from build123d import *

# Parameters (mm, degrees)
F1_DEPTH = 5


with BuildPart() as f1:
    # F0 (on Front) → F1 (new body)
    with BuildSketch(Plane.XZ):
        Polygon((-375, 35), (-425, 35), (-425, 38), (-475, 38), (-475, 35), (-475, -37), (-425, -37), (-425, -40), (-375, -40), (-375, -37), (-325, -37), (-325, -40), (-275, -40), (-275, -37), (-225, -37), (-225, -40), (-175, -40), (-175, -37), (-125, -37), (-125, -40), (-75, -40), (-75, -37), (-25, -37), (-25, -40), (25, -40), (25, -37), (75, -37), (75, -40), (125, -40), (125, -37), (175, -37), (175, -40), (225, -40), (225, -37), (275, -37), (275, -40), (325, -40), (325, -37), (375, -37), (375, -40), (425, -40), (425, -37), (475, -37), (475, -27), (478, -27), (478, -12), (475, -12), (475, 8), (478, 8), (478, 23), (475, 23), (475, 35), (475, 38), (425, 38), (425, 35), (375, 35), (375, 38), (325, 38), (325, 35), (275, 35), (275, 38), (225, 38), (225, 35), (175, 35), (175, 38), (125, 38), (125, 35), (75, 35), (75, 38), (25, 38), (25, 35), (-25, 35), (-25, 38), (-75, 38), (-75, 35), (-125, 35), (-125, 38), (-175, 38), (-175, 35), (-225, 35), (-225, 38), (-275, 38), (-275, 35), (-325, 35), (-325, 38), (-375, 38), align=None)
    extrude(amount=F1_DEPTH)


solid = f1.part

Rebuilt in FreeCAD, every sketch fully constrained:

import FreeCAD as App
import Part
import Sketcher
Q = App.Units.Quantity


def add_polygon(sketch, points):
    """Adds a closed chain of lines whose ends are joined by coincident constraints."""
    first, n = sketch.GeometryCount, len(points)
    for a, b in zip(points, points[1:] + points[:1]):
        sketch.addGeometry(Part.LineSegment(App.Vector(*a, 0), App.Vector(*b, 0)), False)
    for i in range(n):
        sketch.addConstraint(Sketcher.Constraint("Coincident", first + i, 2, first + (i + 1) % n, 1))

doc = App.newDocument("Part")
body = doc.addObject("PartDesign::Body", "Body")

# Sketch on XZ plane
sketch1 = body.newObject("Sketcher::SketchObject", "Sketch")
sketch1.AttachmentSupport = (doc.getObject("XZ_Plane"), [""])
sketch1.MapMode = "FlatFace"
add_polygon(sketch1, [(-375, 35), (-425, 35), (-425, 38), (-475, 38), (-475, -37), (-425, -37), (-425, -40), (-375, -40), (-375, -37), (-325, -37), (-325, -40), (-275, -40), (-275, -37), (-225, -37), (-225, -40), (-175, -40), (-175, -37), (-125, -37), (-125, -40), (-75, -40), (-75, -37), (-25, -37), (-25, -40), (25, -40), (25, -37), (75, -37), (75, -40), (125, -40), (125, -37), (175, -37), (175, -40), (225, -40), (225, -37), (275, -37), (275, -40), (325, -40), (325, -37), (375, -37), (375, -40), (425, -40), (425, -37), (475, -37), (475, -27), (478, -27), (478, -12), (475, -12), (475, 8), (478, 8), (478, 23), (475, 23), (475, 38), (425, 38), (425, 35), (375, 35), (375, 38), (325, 38), (325, 35), (275, 35), (275, 38), (225, 38), (225, 35), (175, 35), (175, 38), (125, 38), (125, 35), (75, 35), (75, 38), (25, 38), (25, 35), (-25, 35), (-25, 38), (-75, 38), (-75, 35), (-125, 35), (-125, 38), (-175, 38), (-175, 35), (-225, 35), (-225, 38), (-275, 38), (-275, 35), (-325, 35), (-325, 38), (-375, 38)])  # lines 0-83
sketch1.addConstraint([
    Sketcher.Constraint("Horizontal", 0),
    Sketcher.Constraint("Vertical", 1),
    Sketcher.Constraint("Horizontal", 2),
    Sketcher.Constraint("Vertical", 3),
    Sketcher.Constraint("Horizontal", 4),
    Sketcher.Constraint("Vertical", 5),
    Sketcher.Constraint("Horizontal", 6),
    Sketcher.Constraint("Vertical", 7),
    Sketcher.Constraint("Horizontal", 8),
    Sketcher.Constraint("Vertical", 9),
    Sketcher.Constraint("Horizontal", 10),
    Sketcher.Constraint("Vertical", 11),
    Sketcher.Constraint("Horizontal", 12),
    Sketcher.Constraint("Vertical", 13),
    Sketcher.Constraint("Horizontal", 14),
    Sketcher.Constraint("Vertical", 15),
    Sketcher.Constraint("Horizontal", 16),
    Sketcher.Constraint("Vertical", 17),
    Sketcher.Constraint("Horizontal", 18),
    Sketcher.Constraint("Vertical", 19),
    Sketcher.Constraint("Horizontal", 20),
    Sketcher.Constraint("Vertical", 21),
    Sketcher.Constraint("Horizontal", 22),
    Sketcher.Constraint("Vertical", 23),
    Sketcher.Constraint("Horizontal", 24),
    Sketcher.Constraint("Vertical", 25),
    Sketcher.Constraint("Horizontal", 26),
    Sketcher.Constraint("Vertical", 27),
    Sketcher.Constraint("Horizontal", 28),
    Sketcher.Constraint("Vertical", 29),
    Sketcher.Constraint("Horizontal", 30),
    Sketcher.Constraint("Vertical", 31),
    Sketcher.Constraint("Horizontal", 32),
    Sketcher.Constraint("Vertical", 33),
    Sketcher.Constraint("Horizontal", 34),
    Sketcher.Constraint("Vertical", 35),
    Sketcher.Constraint("Horizontal", 36),
    Sketcher.Constraint("Vertical", 37),
    Sketcher.Constraint("Horizontal", 38),
    Sketcher.Constraint("Vertical", 39),
    Sketcher.Constraint("Horizontal", 40),
    Sketcher.Constraint("Vertical", 41),
    Sketcher.Constraint("Horizontal", 42),
    Sketcher.Constraint("Vertical", 43),
    Sketcher.Constraint("Horizontal", 44),
    Sketcher.Constraint("Vertical", 45),
    Sketcher.Constraint("Horizontal", 46),
    Sketcher.Constraint("Vertical", 47),
    Sketcher.Constraint("Horizontal", 48),
    Sketcher.Constraint("Vertical", 49),
    Sketcher.Constraint("Horizontal", 50),
    Sketcher.Constraint("Vertical", 51),
    Sketcher.Constraint("Horizontal", 52),
    Sketcher.Constraint("Vertical", 53),
    Sketcher.Constraint("Horizontal", 54),
    Sketcher.Constraint("Vertical", 55),
    Sketcher.Constraint("Horizontal", 56),
    Sketcher.Constraint("Vertical", 57),
    Sketcher.Constraint("Horizontal", 58),
    Sketcher.Constraint("Vertical", 59),
    Sketcher.Constraint("Horizontal", 60),
    Sketcher.Constraint("Vertical", 61),
    Sketcher.Constraint("Horizontal", 62),
    Sketcher.Constraint("Vertical", 63),
    Sketcher.Constraint("Horizontal", 64),
    Sketcher.Constraint("Vertical", 65),
    Sketcher.Constraint("Horizontal", 66),
    Sketcher.Constraint("Vertical", 67),
    Sketcher.Constraint("Horizontal", 68),
    Sketcher.Constraint("Vertical", 69),
    Sketcher.Constraint("Horizontal", 70),
    Sketcher.Constraint("Vertical", 71),
    Sketcher.Constraint("Horizontal", 72),
    Sketcher.Constraint("Vertical", 73),
    Sketcher.Constraint("Horizontal", 74),
    Sketcher.Constraint("Vertical", 75),
    Sketcher.Constraint("Horizontal", 76),
    Sketcher.Constraint("Vertical", 77),
    Sketcher.Constraint("Horizontal", 78),
    Sketcher.Constraint("Vertical", 79),
    Sketcher.Constraint("Horizontal", 80),
    Sketcher.Constraint("Vertical", 81),
    Sketcher.Constraint("Horizontal", 82),
    Sketcher.Constraint("Vertical", 83),
    Sketcher.Constraint("Symmetric", 20, 2, 23, 2, -2),
    Sketcher.Constraint("Symmetric", 18, 2, 25, 2, -2),
    Sketcher.Constraint("Symmetric", 16, 2, 27, 2, -2),
    Sketcher.Constraint("Symmetric", 14, 2, 29, 2, -2),
    Sketcher.Constraint("Symmetric", 12, 2, 31, 2, -2),
    Sketcher.Constraint("Symmetric", 10, 2, 33, 2, -2),
    Sketcher.Constraint("Symmetric", 8, 2, 35, 2, -2),
    Sketcher.Constraint("Symmetric", 6, 2, 37, 2, -2),
    Sketcher.Constraint("Symmetric", 4, 2, 39, 2, -2),
    Sketcher.Constraint("Symmetric", 2, 2, 49, 2, -2),
    Sketcher.Constraint("Symmetric", 0, 2, 51, 2, -2),
    Sketcher.Constraint("Symmetric", 66, 2, 69, 2, -2),
    Sketcher.Constraint("Symmetric", 64, 2, 71, 2, -2),
    Sketcher.Constraint("Symmetric", 62, 2, 73, 2, -2),
    Sketcher.Constraint("Symmetric", 60, 2, 75, 2, -2),
    Sketcher.Constraint("Symmetric", 58, 2, 77, 2, -2),
    Sketcher.Constraint("Symmetric", 56, 2, 79, 2, -2),
    Sketcher.Constraint("Symmetric", 54, 2, 81, 2, -2),
    Sketcher.Constraint("Horizontal", 4, 2, 7, 2),
    Sketcher.Constraint("Horizontal", 6, 2, 9, 2),
    Sketcher.Constraint("Horizontal", 8, 2, 11, 2),
    Sketcher.Constraint("Horizontal", 10, 2, 13, 2),
    Sketcher.Constraint("Horizontal", 12, 2, 15, 2),
    Sketcher.Constraint("Horizontal", 14, 2, 17, 2),
    Sketcher.Constraint("Horizontal", 16, 2, 19, 2),
    Sketcher.Constraint("Horizontal", 18, 2, 21, 2),
    Sketcher.Constraint("Horizontal", 50, 2, 53, 2),
    Sketcher.Constraint("Horizontal", 52, 2, 55, 2),
    Sketcher.Constraint("Horizontal", 54, 2, 57, 2),
    Sketcher.Constraint("Horizontal", 56, 2, 59, 2),
    Sketcher.Constraint("Horizontal", 58, 2, 61, 2),
    Sketcher.Constraint("Horizontal", 60, 2, 63, 2),
    Sketcher.Constraint("Horizontal", 62, 2, 65, 2),
    Sketcher.Constraint("Horizontal", 64, 2, 67, 2),
    Sketcher.Constraint("Vertical", 1, 2, 4, 2),
    Sketcher.Constraint("Vertical", 41, 2, 44, 2),
    Sketcher.Constraint("Vertical", 43, 2, 46, 2),
    Sketcher.Constraint("Vertical", 45, 2, 48, 2),
    Sketcher.Constraint("Vertical", 37, 2, 52, 2),
    Sketcher.Constraint("Vertical", 35, 2, 54, 2),
    Sketcher.Constraint("Vertical", 33, 2, 56, 2),
    Sketcher.Constraint("Vertical", 31, 2, 58, 2),
    Sketcher.Constraint("Vertical", 29, 2, 60, 2),
    Sketcher.Constraint("Vertical", 27, 2, 62, 2),
    Sketcher.Constraint("Vertical", 25, 2, 64, 2),
    Sketcher.Constraint("Vertical", 23, 2, 66, 2),
    Sketcher.Constraint("Vertical", 7, 2, 82, 2),
    Sketcher.Constraint("Equal", 0, 2),
    Sketcher.Constraint("Equal", 6, 8),
    Sketcher.Constraint("Equal", 8, 10),
    Sketcher.Constraint("Equal", 10, 12),
    Sketcher.Constraint("Equal", 12, 14),
    Sketcher.Constraint("Equal", 14, 16),
    Sketcher.Constraint("Equal", 16, 18),
    Sketcher.Constraint("Equal", 18, 20),
    Sketcher.Constraint("Equal", 20, 22),
    Sketcher.Constraint("Equal", 48, 1),
    Sketcher.Constraint("Equal", 1, 5),
    Sketcher.Constraint("Equal", 43, 47),
    Sketcher.Constraint("Equal", 47, 49),
    Sketcher.Constraint("DistanceX", 0, 2, 0, 1, Q("50 mm")),
    Sketcher.Constraint("DistanceX", 42, 1, 42, 2, Q("3 mm")),
    Sketcher.Constraint("DistanceY", 3, 2, 3, 1, Q("75 mm")),
    Sketcher.Constraint("DistanceY", 41, 1, 41, 2, Q("10 mm")),
    Sketcher.Constraint("DistanceY", 43, 1, 43, 2, Q("15 mm")),
    Sketcher.Constraint("DistanceY", -1, 1, 0, 2, Q("35 mm")),
])
pad1 = body.newObject("PartDesign::Pad", "Pad")
pad1.Profile = sketch1
pad1.Length = 5

doc.recompute()
